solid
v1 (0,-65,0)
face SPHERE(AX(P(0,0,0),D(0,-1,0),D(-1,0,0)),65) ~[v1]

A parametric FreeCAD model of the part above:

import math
import FreeCAD as App
import Part
import Sketcher
from FreeCAD import Vector

doc = App.newDocument("Part")
body = doc.addObject("PartDesign::Body", "Body")

# Sketch on XY plane
sketch1 = body.newObject("Sketcher::SketchObject", "Sketch")
sketch1.AttachmentSupport = (doc.getObject("XY_Plane"), [""])
sketch1.MapMode = "FlatFace"
sketch1.addGeometry([
    Part.LineSegment(Vector(0, -65, 0), Vector(0, 65, 0)),
    Part.ArcOfCircle(Part.Circle(Vector(0, 0, 0), Vector(0, 0, 1), 65), math.radians(90), math.radians(270)),
], False)
sketch1.addConstraint([
    Sketcher.Constraint("Coincident", 0, 1, 1, 2),
    Sketcher.Constraint("Coincident", 1, 1, 0, 2),
    Sketcher.Constraint("Vertical", 0),
    Sketcher.Constraint("Coincident", 1, 3, -1, 1),
    Sketcher.Constraint("PointOnObject", 0, 1, -2),
    Sketcher.Constraint("Radius", 1, 65.0),
])
revolution = body.newObject("PartDesign::Revolution", "Revolution")
revolution.Profile = sketch1
revolution.ReferenceAxis = (sketch1, ["V_Axis"])
revolution.Angle = 360

doc.recompute()
